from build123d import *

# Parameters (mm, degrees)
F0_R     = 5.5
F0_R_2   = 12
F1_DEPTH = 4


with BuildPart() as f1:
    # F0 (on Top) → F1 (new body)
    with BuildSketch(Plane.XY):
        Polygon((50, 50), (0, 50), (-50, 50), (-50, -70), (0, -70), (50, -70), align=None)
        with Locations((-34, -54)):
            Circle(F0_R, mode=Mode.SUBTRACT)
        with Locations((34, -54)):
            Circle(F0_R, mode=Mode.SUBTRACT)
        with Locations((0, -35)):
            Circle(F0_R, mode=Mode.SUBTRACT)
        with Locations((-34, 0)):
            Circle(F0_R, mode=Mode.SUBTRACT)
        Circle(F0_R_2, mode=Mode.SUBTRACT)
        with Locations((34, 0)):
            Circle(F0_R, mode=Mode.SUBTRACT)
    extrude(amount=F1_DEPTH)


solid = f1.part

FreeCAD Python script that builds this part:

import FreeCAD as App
import Part
import Sketcher
from FreeCAD import Vector


def add_polygon(sketch, points):
    """Adds a closed chain of lines whose ends are joined by coincident constraints."""
    first, n = sketch.GeometryCount, len(points)
    for a, b in zip(points, points[1:] + points[:1]):
        sketch.addGeometry(Part.LineSegment(App.Vector(*a, 0), App.Vector(*b, 0)), False)
    for i in range(n):
        sketch.addConstraint(Sketcher.Constraint("Coincident", first + i, 2, first + (i + 1) % n, 1))

doc = App.newDocument("Part")
body = doc.addObject("PartDesign::Body", "Body")

sketch1 = body.newObject("Sketcher::SketchObject", "Sketch")
sketch1.AttachmentSupport = (doc.getObject("XY_Plane"), [""])
sketch1.MapMode = "FlatFace"
add_polygon(sketch1, [(50, 50), (-50, 50), (-50, -70), (50, -70)])
sketch1.addGeometry(Part.Circle(Vector(-34, -54, 0), Vector(0, 0, 1), 5.5), False)
sketch1.addGeometry(Part.Circle(Vector(34, -54, 0), Vector(0, 0, 1), 5.5), False)
sketch1.addGeometry(Part.Circle(Vector(0, -35, 0), Vector(0, 0, 1), 5.5), False)
sketch1.addGeometry(Part.Circle(Vector(-34, 0, 0), Vector(0, 0, 1), 5.5), False)
sketch1.addGeometry(Part.Circle(Vector(0, 0, 0), Vector(0, 0, 1), 12), False)
sketch1.addGeometry(Part.Circle(Vector(34, 0, 0), Vector(0, 0, 1), 5.5), False)
sketch1.addConstraint(Sketcher.Constraint("Horizontal", 0))
sketch1.addConstraint(Sketcher.Constraint("Vertical", 1))
sketch1.addConstraint(Sketcher.Constraint("Horizontal", 2))
sketch1.addConstraint(Sketcher.Constraint("Vertical", 3))
sketch1.addConstraint(Sketcher.Constraint("Coincident", 8, 3, -1, 1))
sketch1.addConstraint(Sketcher.Constraint("Equal", 4, 5))
sketch1.addConstraint(Sketcher.Constraint("Equal", 5, 6))
sketch1.addConstraint(Sketcher.Constraint("Equal", 6, 7))
sketch1.addConstraint(Sketcher.Constraint("Equal", 7, 9))
sketch1.addConstraint(Sketcher.Constraint("Symmetric", 7, 3, 9, 3, -1, 1))
sketch1.addConstraint(Sketcher.Constraint("Symmetric", 4, 3, 5, 3, -2))
sketch1.addConstraint(Sketcher.Constraint("PointOnObject", 6, 3, -2))
sketch1.addConstraint(Sketcher.Constraint("PointOnObject", 7, 3, -1))
sketch1.addConstraint(Sketcher.Constraint("Vertical", 4, 3, 7, 3))
sketch1.addConstraint(Sketcher.Constraint("Diameter", 4, 11.0))
sketch1.addConstraint(Sketcher.Constraint("Diameter", 8, 24.0))
sketch1.addConstraint(Sketcher.Constraint("DistanceX", 0, 2, 0, 1, 100.0))
sketch1.addConstraint(Sketcher.Constraint("DistanceY", 1, 2, 1, 1, 120.0))
sketch1.addConstraint(Sketcher.Constraint("DistanceX", 4, 3, -1, 1, 34.0))
sketch1.addConstraint(Sketcher.Constraint("DistanceY", 4, 3, -1, 1, 54.0))
sketch1.addConstraint(Sketcher.Constraint("DistanceY", 6, 3, -1, 1, 35.0))
sketch1.addConstraint(Sketcher.Constraint("DistanceX", 0, 2, -1, 1, 50.0))
sketch1.addConstraint(Sketcher.Constraint("DistanceY", -1, 1, 0, 2, 50.0))
pad1 = body.newObject("PartDesign::Pad", "Pad")
pad1.Profile = sketch1
pad1.Length = 4

doc.recompute()
